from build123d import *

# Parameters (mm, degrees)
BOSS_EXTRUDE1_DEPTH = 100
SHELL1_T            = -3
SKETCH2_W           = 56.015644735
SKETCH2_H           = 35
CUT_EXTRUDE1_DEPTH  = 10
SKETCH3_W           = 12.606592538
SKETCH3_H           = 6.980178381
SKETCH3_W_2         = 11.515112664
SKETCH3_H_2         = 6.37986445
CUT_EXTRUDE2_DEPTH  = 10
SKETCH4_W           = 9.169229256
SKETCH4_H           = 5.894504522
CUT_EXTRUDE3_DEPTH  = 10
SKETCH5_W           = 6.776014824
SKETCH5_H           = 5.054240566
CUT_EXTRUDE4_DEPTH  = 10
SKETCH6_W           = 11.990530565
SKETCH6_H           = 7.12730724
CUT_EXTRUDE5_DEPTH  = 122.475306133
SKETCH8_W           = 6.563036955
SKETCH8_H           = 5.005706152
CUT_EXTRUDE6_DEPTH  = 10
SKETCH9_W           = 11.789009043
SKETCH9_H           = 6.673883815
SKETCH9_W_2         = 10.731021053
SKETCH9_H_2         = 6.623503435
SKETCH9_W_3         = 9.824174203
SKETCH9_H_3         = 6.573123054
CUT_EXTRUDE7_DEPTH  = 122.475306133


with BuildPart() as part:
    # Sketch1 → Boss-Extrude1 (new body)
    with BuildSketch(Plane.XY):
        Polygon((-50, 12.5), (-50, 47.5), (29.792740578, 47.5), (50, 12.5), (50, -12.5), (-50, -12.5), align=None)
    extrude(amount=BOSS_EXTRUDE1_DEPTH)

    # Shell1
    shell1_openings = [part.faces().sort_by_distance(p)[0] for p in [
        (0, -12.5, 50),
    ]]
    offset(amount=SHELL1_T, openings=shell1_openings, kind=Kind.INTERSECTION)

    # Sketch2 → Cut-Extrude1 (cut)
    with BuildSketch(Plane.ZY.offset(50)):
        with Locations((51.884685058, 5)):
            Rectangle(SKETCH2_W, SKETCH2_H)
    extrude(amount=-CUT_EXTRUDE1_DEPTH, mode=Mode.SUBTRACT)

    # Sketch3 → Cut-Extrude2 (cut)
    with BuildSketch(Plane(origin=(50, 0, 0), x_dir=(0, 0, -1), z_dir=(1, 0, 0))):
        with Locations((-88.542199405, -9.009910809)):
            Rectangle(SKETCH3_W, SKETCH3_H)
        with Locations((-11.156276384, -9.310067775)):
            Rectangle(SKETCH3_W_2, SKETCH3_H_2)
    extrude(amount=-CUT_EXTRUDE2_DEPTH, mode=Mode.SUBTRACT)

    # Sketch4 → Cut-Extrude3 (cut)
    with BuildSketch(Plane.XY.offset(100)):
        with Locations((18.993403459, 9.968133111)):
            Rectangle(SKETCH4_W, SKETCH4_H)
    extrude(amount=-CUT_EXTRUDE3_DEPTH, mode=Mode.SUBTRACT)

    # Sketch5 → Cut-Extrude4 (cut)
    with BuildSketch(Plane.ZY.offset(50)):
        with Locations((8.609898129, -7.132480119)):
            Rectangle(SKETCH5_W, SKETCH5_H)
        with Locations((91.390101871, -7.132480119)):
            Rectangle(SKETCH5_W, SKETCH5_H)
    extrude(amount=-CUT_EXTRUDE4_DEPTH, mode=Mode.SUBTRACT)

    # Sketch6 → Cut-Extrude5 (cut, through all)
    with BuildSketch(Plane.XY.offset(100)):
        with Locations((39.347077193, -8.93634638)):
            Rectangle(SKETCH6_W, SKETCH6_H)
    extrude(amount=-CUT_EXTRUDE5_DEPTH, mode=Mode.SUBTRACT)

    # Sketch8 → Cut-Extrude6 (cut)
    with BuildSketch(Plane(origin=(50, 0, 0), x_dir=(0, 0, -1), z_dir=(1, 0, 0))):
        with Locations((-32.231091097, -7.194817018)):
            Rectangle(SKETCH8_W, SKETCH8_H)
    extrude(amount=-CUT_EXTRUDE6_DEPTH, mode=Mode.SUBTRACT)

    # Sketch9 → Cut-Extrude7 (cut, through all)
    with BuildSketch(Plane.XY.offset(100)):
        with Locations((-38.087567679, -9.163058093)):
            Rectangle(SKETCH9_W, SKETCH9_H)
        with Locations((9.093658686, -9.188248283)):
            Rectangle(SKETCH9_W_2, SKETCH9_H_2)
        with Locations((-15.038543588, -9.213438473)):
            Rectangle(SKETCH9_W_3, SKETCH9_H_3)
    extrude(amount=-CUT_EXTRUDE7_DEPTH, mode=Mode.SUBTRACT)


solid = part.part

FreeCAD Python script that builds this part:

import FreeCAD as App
import Part
import Sketcher

V = App.Vector
Q = App.Units.Quantity


def faces_at(feature, points):
    """Names of the faces that lie closest to the given points."""
    faces = feature.Shape.Faces
    near = lambda p: min(range(len(faces)), key=lambda i: faces[i].distToShape(Part.Vertex(*p))[0])
    return sorted({f"Face{near(p) + 1}" for p in points})

doc = App.newDocument("Part")
body = doc.addObject("PartDesign::Body", "Body")

sketch1 = body.newObject("Sketcher::SketchObject", "Sketch")
sketch1.AttachmentSupport = (doc.getObject("XY_Plane"), [""])
sketch1.MapMode = "FlatFace"
sketch1.addGeometry(Part.LineSegment(V(-50, 48, 0), V(-50, -12, 0)), False)
sketch1.addGeometry(Part.LineSegment(V(-50, -12, 0), V(50, -12, 0)), False)
sketch1.addGeometry(Part.LineSegment(V(50, -12, 0), V(50, 12, 0)), False)
sketch1.addGeometry(Part.LineSegment(V(50, 12, 0), V(30, 48, 0)), False)
sketch1.addGeometry(Part.LineSegment(V(30, 48, 0), V(-50, 48, 0)), False)
sketch1.addConstraint(Sketcher.Constraint("Coincident", 0, 2, 1, 1))
sketch1.addConstraint(Sketcher.Constraint("Coincident", 1, 2, 2, 1))
sketch1.addConstraint(Sketcher.Constraint("Coincident", 2, 2, 3, 1))
sketch1.addConstraint(Sketcher.Constraint("Coincident", 3, 2, 4, 1))
sketch1.addConstraint(Sketcher.Constraint("Coincident", 4, 2, 0, 1))
sketch1.addConstraint(Sketcher.Constraint("Vertical", 0))
sketch1.addConstraint(Sketcher.Constraint("Horizontal", 1))
sketch1.addConstraint(Sketcher.Constraint("Vertical", 2))
sketch1.addConstraint(Sketcher.Constraint("Horizontal", 4))
sketch1.addConstraint(Sketcher.Constraint("Symmetric", 0, 2, 2, 2, -1, 1))
sketch1.addConstraint(Sketcher.Constraint("DistanceX", 1, 1, 1, 2, 100.0))
sketch1.addConstraint(Sketcher.Constraint("DistanceY", 0, 2, 0, 1, 60.0))
sketch1.addConstraint(Sketcher.Constraint("DistanceY", 2, 1, 2, 2, 25.0))
sketch1.addConstraint(Sketcher.Constraint("Angle", 3, Q("120 deg")))
pad1 = body.newObject("PartDesign::Pad", "Pad")
pad1.Profile = sketch1
pad1.Length = 100
doc.recompute()

thickness = body.newObject("PartDesign::Thickness", "Thickness")
thickness.Base = (pad1, faces_at(pad1, [(0, -12.5, 50)]))
thickness.Value = 3
thickness.Reversed = True
thickness.Join = "Intersection"

sketch2 = body.newObject("Sketcher::SketchObject", "Sketch001")
sketch2.AttachmentSupport = (doc.getObject("YZ_Plane"), [""])
sketch2.MapMode = "FlatFace"
sketch2.AttachmentOffset = App.Placement(V(0, 0, -50), App.Rotation())
sketch2.addGeometry(Part.LineSegment(V(22, 24, 0), V(-12, 24, 0)), False)
sketch2.addGeometry(Part.LineSegment(V(-12, 24, 0), V(-12, 80, 0)), False)
sketch2.addGeometry(Part.LineSegment(V(-12, 80, 0), V(22, 80, 0)), False)
sketch2.addGeometry(Part.LineSegment(V(22, 80, 0), V(22, 24, 0)), False)
sketch2.addConstraint(Sketcher.Constraint("Coincident", 0, 2, 1, 1))
sketch2.addConstraint(Sketcher.Constraint("Coincident", 1, 2, 2, 1))
sketch2.addConstraint(Sketcher.Constraint("Coincident", 2, 2, 3, 1))
sketch2.addConstraint(Sketcher.Constraint("Coincident", 3, 2, 0, 1))
sketch2.addConstraint(Sketcher.Constraint("Horizontal", 0))
sketch2.addConstraint(Sketcher.Constraint("Vertical", 1))
sketch2.addConstraint(Sketcher.Constraint("Horizontal", 2))
sketch2.addConstraint(Sketcher.Constraint("Vertical", 3))
sketch2.addConstraint(Sketcher.Constraint("DistanceX", 0, 2, 0, 1, 35.0))
sketch2.addConstraint(Sketcher.Constraint("DistanceX", 0, 2, -1, 1, 12.5))
sketch2.addConstraint(Sketcher.Constraint("DistanceY", 1, 1, 1, 2, 56.015645))
sketch2.addConstraint(Sketcher.Constraint("DistanceY", -1, 1, 0, 2, 23.876863))
pocket1 = body.newObject("PartDesign::Pocket", "Pocket")
pocket1.Profile = sketch2
pocket1.Length = 10
pocket1.Reversed = True

sketch3 = body.newObject("Sketcher::SketchObject", "Sketch002")
sketch3.AttachmentSupport = (doc.getObject("YZ_Plane"), [""])
sketch3.MapMode = "FlatFace"
sketch3.AttachmentOffset = App.Placement(V(0, 0, 50), App.Rotation())
sketch3.addGeometry(Part.LineSegment(V(-6, 95, 0), V(-12, 95, 0)), False)
sketch3.addGeometry(Part.LineSegment(V(-12, 95, 0), V(-12, 82, 0)), False)
sketch3.addGeometry(Part.LineSegment(V(-12, 82, 0), V(-6, 82, 0)), False)
sketch3.addGeometry(Part.LineSegment(V(-6, 82, 0), V(-6, 95, 0)), False)
sketch3.addGeometry(Part.LineSegment(V(-6, 17, 0), V(-12, 17, 0)), False)
sketch3.addGeometry(Part.LineSegment(V(-12, 17, 0), V(-12, 5, 0)), False)
sketch3.addGeometry(Part.LineSegment(V(-12, 5, 0), V(-6, 5, 0)), False)
sketch3.addGeometry(Part.LineSegment(V(-6, 5, 0), V(-6, 17, 0)), False)
sketch3.addConstraint(Sketcher.Constraint("Coincident", 0, 2, 1, 1))
sketch3.addConstraint(Sketcher.Constraint("Coincident", 1, 2, 2, 1))
sketch3.addConstraint(Sketcher.Constraint("Coincident", 2, 2, 3, 1))
sketch3.addConstraint(Sketcher.Constraint("Coincident", 3, 2, 0, 1))
sketch3.addConstraint(Sketcher.Constraint("Coincident", 4, 2, 5, 1))
sketch3.addConstraint(Sketcher.Constraint("Coincident", 5, 2, 6, 1))
sketch3.addConstraint(Sketcher.Constraint("Coincident", 6, 2, 7, 1))
sketch3.addConstraint(Sketcher.Constraint("Coincident", 7, 2, 4, 1))
sketch3.addConstraint(Sketcher.Constraint("Horizontal", 0))
sketch3.addConstraint(Sketcher.Constraint("Vertical", 1))
sketch3.addConstraint(Sketcher.Constraint("Horizontal", 2))
sketch3.addConstraint(Sketcher.Constraint("Vertical", 3))
sketch3.addConstraint(Sketcher.Constraint("Horizontal", 4))
sketch3.addConstraint(Sketcher.Constraint("Vertical", 5))
sketch3.addConstraint(Sketcher.Constraint("Horizontal", 6))
sketch3.addConstraint(Sketcher.Constraint("Vertical", 7))
sketch3.addConstraint(Sketcher.Constraint("Vertical", 1, 2, 4, 2))
sketch3.addConstraint(Sketcher.Constraint("DistanceX", 0, 2, -1, 1, 12.5))
sketch3.addConstraint(Sketcher.Constraint("DistanceX", 0, 2, 0, 1, 6.980178))
sketch3.addConstraint(Sketcher.Constraint("DistanceX", 4, 2, 4, 1, 6.379864))
sketch3.addConstraint(Sketcher.Constraint("DistanceY", 1, 2, 1, 1, 12.606593))
sketch3.addConstraint(Sketcher.Constraint("DistanceY", 5, 2, 5, 1, 11.515113))
sketch3.addConstraint(Sketcher.Constraint("DistanceY", -1, 1, 5, 2, 5.39872))
sketch3.addConstraint(Sketcher.Constraint("DistanceY", 4, 2, 1, 2, 65.32507))
pocket2 = body.newObject("PartDesign::Pocket", "Pocket001")
pocket2.Profile = sketch3
pocket2.Length = 10

sketch4 = body.newObject("Sketcher::SketchObject", "Sketch003")
sketch4.AttachmentSupport = (doc.getObject("XY_Plane"), [""])
sketch4.MapMode = "FlatFace"
sketch4.AttachmentOffset = App.Placement(V(0, 0, 100), App.Rotation())
sketch4.addGeometry(Part.LineSegment(V(14, 13, 0), V(14, 7, 0)), False)
sketch4.addGeometry(Part.LineSegment(V(14, 7, 0), V(24, 7, 0)), False)
sketch4.addGeometry(Part.LineSegment(V(24, 7, 0), V(24, 13, 0)), False)
sketch4.addGeometry(Part.LineSegment(V(24, 13, 0), V(14, 13, 0)), False)
sketch4.addConstraint(Sketcher.Constraint("Coincident", 0, 2, 1, 1))
sketch4.addConstraint(Sketcher.Constraint("Coincident", 1, 2, 2, 1))
sketch4.addConstraint(Sketcher.Constraint("Coincident", 2, 2, 3, 1))
sketch4.addConstraint(Sketcher.Constraint("Coincident", 3, 2, 0, 1))
sketch4.addConstraint(Sketcher.Constraint("Vertical", 0))
sketch4.addConstraint(Sketcher.Constraint("Horizontal", 1))
sketch4.addConstraint(Sketcher.Constraint("Vertical", 2))
sketch4.addConstraint(Sketcher.Constraint("Horizontal", 3))
sketch4.addConstraint(Sketcher.Constraint("DistanceX", 1, 1, 1, 2, 9.169229))
sketch4.addConstraint(Sketcher.Constraint("DistanceY", 0, 2, 0, 1, 5.894505))
sketch4.addConstraint(Sketcher.Constraint("DistanceX", -1, 1, 0, 2, 14.408789))
sketch4.addConstraint(Sketcher.Constraint("DistanceY", -1, 1, 0, 2, 7.020881))
pocket3 = body.newObject("PartDesign::Pocket", "Pocket002")
pocket3.Profile = sketch4
pocket3.Length = 10

sketch5 = body.newObject("Sketcher::SketchObject", "Sketch004")
sketch5.AttachmentSupport = (doc.getObject("YZ_Plane"), [""])
sketch5.MapMode = "FlatFace"
sketch5.AttachmentOffset = App.Placement(V(0, 0, -50), App.Rotation())
sketch5.addGeometry(Part.LineSegment(V(-5, 5, 0), V(-10, 5, 0)), False)
sketch5.addGeometry(Part.LineSegment(V(-10, 5, 0), V(-10, 12, 0)), False)
sketch5.addGeometry(Part.LineSegment(V(-10, 12, 0), V(-5, 12, 0)), False)
sketch5.addGeometry(Part.LineSegment(V(-5, 12, 0), V(-5, 5, 0)), False)
sketch5.addGeometry(Part.LineSegment(V(-5, 88, 0), V(-10, 88, 0)), False)
sketch5.addGeometry(Part.LineSegment(V(-10, 88, 0), V(-10, 95, 0)), False)
sketch5.addGeometry(Part.LineSegment(V(-10, 95, 0), V(-5, 95, 0)), False)
sketch5.addGeometry(Part.LineSegment(V(-5, 95, 0), V(-5, 88, 0)), False)
sketch5.addConstraint(Sketcher.Constraint("Coincident", 0, 2, 1, 1))
sketch5.addConstraint(Sketcher.Constraint("Coincident", 1, 2, 2, 1))
sketch5.addConstraint(Sketcher.Constraint("Coincident", 2, 2, 3, 1))
sketch5.addConstraint(Sketcher.Constraint("Coincident", 3, 2, 0, 1))
sketch5.addConstraint(Sketcher.Constraint("Coincident", 4, 2, 5, 1))
sketch5.addConstraint(Sketcher.Constraint("Coincident", 5, 2, 6, 1))
sketch5.addConstraint(Sketcher.Constraint("Coincident", 6, 2, 7, 1))
sketch5.addConstraint(Sketcher.Constraint("Coincident", 7, 2, 4, 1))
sketch5.addConstraint(Sketcher.Constraint("Horizontal", 0))
sketch5.addConstraint(Sketcher.Constraint("Vertical", 1))
sketch5.addConstraint(Sketcher.Constraint("Horizontal", 2))
sketch5.addConstraint(Sketcher.Constraint("Vertical", 3))
sketch5.addConstraint(Sketcher.Constraint("Horizontal", 4))
sketch5.addConstraint(Sketcher.Constraint("Vertical", 5))
sketch5.addConstraint(Sketcher.Constraint("Horizontal", 6))
sketch5.addConstraint(Sketcher.Constraint("Vertical", 7))
sketch5.addConstraint(Sketcher.Constraint("Vertical", 1, 2, 4, 2))
sketch5.addConstraint(Sketcher.Constraint("Vertical", 3, 2, 6, 2))
sketch5.addConstraint(Sketcher.Constraint("Equal", 3, 5))
sketch5.addConstraint(Sketcher.Constraint("DistanceX", 0, 2, 0, 1, 5.054241))
sketch5.addConstraint(Sketcher.Constraint("DistanceX", 0, 2, -1, 1, 9.6596))
sketch5.addConstraint(Sketcher.Constraint("DistanceY", 1, 1, 1, 2, 6.776015))
sketch5.addConstraint(Sketcher.Constraint("DistanceY", -1, 1, 0, 2, 5.221891))
sketch5.addConstraint(Sketcher.Constraint("DistanceY", -1, 1, 5, 2, 94.778109))
pocket4 = body.newObject("PartDesign::Pocket", "Pocket003")
pocket4.Profile = sketch5
pocket4.Length = 10
pocket4.Reversed = True

sketch6 = body.newObject("Sketcher::SketchObject", "Sketch005")
sketch6.AttachmentSupport = (doc.getObject("XY_Plane"), [""])
sketch6.MapMode = "FlatFace"
sketch6.AttachmentOffset = App.Placement(V(0, 0, 100), App.Rotation())
sketch6.addGeometry(Part.LineSegment(V(33, -5, 0), V(33, -12, 0)), False)
sketch6.addGeometry(Part.LineSegment(V(33, -12, 0), V(45, -12, 0)), False)
sketch6.addGeometry(Part.LineSegment(V(45, -12, 0), V(45, -5, 0)), False)
sketch6.addGeometry(Part.LineSegment(V(45, -5, 0), V(33, -5, 0)), False)
sketch6.addConstraint(Sketcher.Constraint("Coincident", 0, 2, 1, 1))
sketch6.addConstraint(Sketcher.Constraint("Coincident", 1, 2, 2, 1))
sketch6.addConstraint(Sketcher.Constraint("Coincident", 2, 2, 3, 1))
sketch6.addConstraint(Sketcher.Constraint("Coincident", 3, 2, 0, 1))
sketch6.addConstraint(Sketcher.Constraint("Vertical", 0))
sketch6.addConstraint(Sketcher.Constraint("Horizontal", 1))
sketch6.addConstraint(Sketcher.Constraint("Vertical", 2))
sketch6.addConstraint(Sketcher.Constraint("Horizontal", 3))
sketch6.addConstraint(Sketcher.Constraint("DistanceY", 0, 2, -1, 1, 12.5))
sketch6.addConstraint(Sketcher.Constraint("DistanceX", 1, 1, 1, 2, 11.990531))
sketch6.addConstraint(Sketcher.Constraint("DistanceY", 0, 2, 0, 1, 7.127307))
sketch6.addConstraint(Sketcher.Constraint("DistanceX", -1, 1, 0, 2, 33.351812))
pocket5 = body.newObject("PartDesign::Pocket", "Pocket004")
pocket5.Profile = sketch6
pocket5.Type = "ThroughAll"

sketch7 = body.newObject("Sketcher::SketchObject", "Sketch006")
sketch7.AttachmentSupport = (doc.getObject("YZ_Plane"), [""])
sketch7.MapMode = "FlatFace"
sketch7.AttachmentOffset = App.Placement(V(0, 0, 50), App.Rotation())
sketch7.addGeometry(Part.LineSegment(V(-5, 36, 0), V(-10, 36, 0)), False)
sketch7.addGeometry(Part.LineSegment(V(-10, 36, 0), V(-10, 29, 0)), False)
sketch7.addGeometry(Part.LineSegment(V(-10, 29, 0), V(-5, 29, 0)), False)
sketch7.addGeometry(Part.LineSegment(V(-5, 29, 0), V(-5, 36, 0)), False)
sketch7.addConstraint(Sketcher.Constraint("Coincident", 0, 2, 1, 1))
sketch7.addConstraint(Sketcher.Constraint("Coincident", 1, 2, 2, 1))
sketch7.addConstraint(Sketcher.Constraint("Coincident", 2, 2, 3, 1))
sketch7.addConstraint(Sketcher.Constraint("Coincident", 3, 2, 0, 1))
sketch7.addConstraint(Sketcher.Constraint("Horizontal", 0))
sketch7.addConstraint(Sketcher.Constraint("Vertical", 1))
sketch7.addConstraint(Sketcher.Constraint("Horizontal", 2))
sketch7.addConstraint(Sketcher.Constraint("Vertical", 3))
sketch7.addConstraint(Sketcher.Constraint("DistanceX", 0, 2, 0, 1, 5.005706))
sketch7.addConstraint(Sketcher.Constraint("DistanceY", 1, 2, 1, 1, 6.563037))
sketch7.addConstraint(Sketcher.Constraint("DistanceX", 0, 2, -1, 1, 9.69767))
sketch7.addConstraint(Sketcher.Constraint("DistanceY", -1, 1, 0, 2, 35.51261))
pocket6 = body.newObject("PartDesign::Pocket", "Pocket005")
pocket6.Profile = sketch7
pocket6.Length = 10

sketch8 = body.newObject("Sketcher::SketchObject", "Sketch007")
sketch8.AttachmentSupport = (doc.getObject("XY_Plane"), [""])
sketch8.MapMode = "FlatFace"
sketch8.AttachmentOffset = App.Placement(V(0, 0, 100), App.Rotation())
sketch8.addGeometry(Part.LineSegment(V(-44, -6, 0), V(-44, -13, 0)), False)
sketch8.addGeometry(Part.LineSegment(V(-44, -13, 0), V(-32, -13, 0)), False)
sketch8.addGeometry(Part.LineSegment(V(-32, -13, 0), V(-32, -6, 0)), False)
sketch8.addGeometry(Part.LineSegment(V(-32, -6, 0), V(-44, -6, 0)), False)
sketch8.addGeometry(Part.LineSegment(V(4, -6, 0), V(4, -13, 0)), False)
sketch8.addGeometry(Part.LineSegment(V(4, -13, 0), V(14, -13, 0)), False)
sketch8.addGeometry(Part.LineSegment(V(14, -13, 0), V(14, -6, 0)), False)
sketch8.addGeometry(Part.LineSegment(V(14, -6, 0), V(4, -6, 0)), False)
sketch8.addGeometry(Part.LineSegment(V(-20, -6, 0), V(-20, -12, 0)), False)
sketch8.addGeometry(Part.LineSegment(V(-20, -12, 0), V(-10, -12, 0)), False)
sketch8.addGeometry(Part.LineSegment(V(-10, -12, 0), V(-10, -6, 0)), False)
sketch8.addGeometry(Part.LineSegment(V(-10, -6, 0), V(-20, -6, 0)), False)
sketch8.addConstraint(Sketcher.Constraint("Coincident", 0, 2, 1, 1))
sketch8.addConstraint(Sketcher.Constraint("Coincident", 1, 2, 2, 1))
sketch8.addConstraint(Sketcher.Constraint("Coincident", 2, 2, 3, 1))
sketch8.addConstraint(Sketcher.Constraint("Coincident", 3, 2, 0, 1))
sketch8.addConstraint(Sketcher.Constraint("Coincident", 4, 2, 5, 1))
sketch8.addConstraint(Sketcher.Constraint("Coincident", 5, 2, 6, 1))
sketch8.addConstraint(Sketcher.Constraint("Coincident", 6, 2, 7, 1))
sketch8.addConstraint(Sketcher.Constraint("Coincident", 7, 2, 4, 1))
sketch8.addConstraint(Sketcher.Constraint("Coincident", 8, 2, 9, 1))
sketch8.addConstraint(Sketcher.Constraint("Coincident", 9, 2, 10, 1))
sketch8.addConstraint(Sketcher.Constraint("Coincident", 10, 2, 11, 1))
sketch8.addConstraint(Sketcher.Constraint("Coincident", 11, 2, 8, 1))
sketch8.addConstraint(Sketcher.Constraint("Vertical", 0))
sketch8.addConstraint(Sketcher.Constraint("Horizontal", 1))
sketch8.addConstraint(Sketcher.Constraint("Vertical", 2))
sketch8.addConstraint(Sketcher.Constraint("Horizontal", 3))
sketch8.addConstraint(Sketcher.Constraint("Vertical", 4))
sketch8.addConstraint(Sketcher.Constraint("Horizontal", 5))
sketch8.addConstraint(Sketcher.Constraint("Vertical", 6))
sketch8.addConstraint(Sketcher.Constraint("Horizontal", 7))
sketch8.addConstraint(Sketcher.Constraint("Vertical", 8))
sketch8.addConstraint(Sketcher.Constraint("Horizontal", 9))
sketch8.addConstraint(Sketcher.Constraint("Vertical", 10))
sketch8.addConstraint(Sketcher.Constraint("Horizontal", 11))
sketch8.addConstraint(Sketcher.Constraint("Horizontal", 1, 2, 4, 2))
sketch8.addConstraint(Sketcher.Constraint("Horizontal", 5, 2, 8, 2))
sketch8.addConstraint(Sketcher.Constraint("DistanceY", 0, 2, -1, 1, 12.5))
sketch8.addConstraint(Sketcher.Constraint("DistanceX", 1, 1, 1, 2, 11.789009))
sketch8.addConstraint(Sketcher.Constraint("DistanceX", 5, 1, 5, 2, 10.731021))
sketch8.addConstraint(Sketcher.Constraint("DistanceX", 9, 1, 9, 2, 9.824174))
sketch8.addConstraint(Sketcher.Constraint("DistanceY", 0, 2, 0, 1, 6.673884))
sketch8.addConstraint(Sketcher.Constraint("DistanceY", 4, 2, 4, 1, 6.623503))
sketch8.addConstraint(Sketcher.Constraint("DistanceY", 8, 2, 8, 1, 6.573123))
sketch8.addConstraint(Sketcher.Constraint("DistanceX", -1, 1, 4, 2, 3.728148))
sketch8.addConstraint(Sketcher.Constraint("DistanceX", 8, 2, -1, 1, 19.950631))
sketch8.addConstraint(Sketcher.Constraint("DistanceX", 1, 2, 4, 2, 35.921211))
pocket7 = body.newObject("PartDesign::Pocket", "Pocket006")
pocket7.Profile = sketch8
pocket7.Type = "ThroughAll"

doc.recompute()
